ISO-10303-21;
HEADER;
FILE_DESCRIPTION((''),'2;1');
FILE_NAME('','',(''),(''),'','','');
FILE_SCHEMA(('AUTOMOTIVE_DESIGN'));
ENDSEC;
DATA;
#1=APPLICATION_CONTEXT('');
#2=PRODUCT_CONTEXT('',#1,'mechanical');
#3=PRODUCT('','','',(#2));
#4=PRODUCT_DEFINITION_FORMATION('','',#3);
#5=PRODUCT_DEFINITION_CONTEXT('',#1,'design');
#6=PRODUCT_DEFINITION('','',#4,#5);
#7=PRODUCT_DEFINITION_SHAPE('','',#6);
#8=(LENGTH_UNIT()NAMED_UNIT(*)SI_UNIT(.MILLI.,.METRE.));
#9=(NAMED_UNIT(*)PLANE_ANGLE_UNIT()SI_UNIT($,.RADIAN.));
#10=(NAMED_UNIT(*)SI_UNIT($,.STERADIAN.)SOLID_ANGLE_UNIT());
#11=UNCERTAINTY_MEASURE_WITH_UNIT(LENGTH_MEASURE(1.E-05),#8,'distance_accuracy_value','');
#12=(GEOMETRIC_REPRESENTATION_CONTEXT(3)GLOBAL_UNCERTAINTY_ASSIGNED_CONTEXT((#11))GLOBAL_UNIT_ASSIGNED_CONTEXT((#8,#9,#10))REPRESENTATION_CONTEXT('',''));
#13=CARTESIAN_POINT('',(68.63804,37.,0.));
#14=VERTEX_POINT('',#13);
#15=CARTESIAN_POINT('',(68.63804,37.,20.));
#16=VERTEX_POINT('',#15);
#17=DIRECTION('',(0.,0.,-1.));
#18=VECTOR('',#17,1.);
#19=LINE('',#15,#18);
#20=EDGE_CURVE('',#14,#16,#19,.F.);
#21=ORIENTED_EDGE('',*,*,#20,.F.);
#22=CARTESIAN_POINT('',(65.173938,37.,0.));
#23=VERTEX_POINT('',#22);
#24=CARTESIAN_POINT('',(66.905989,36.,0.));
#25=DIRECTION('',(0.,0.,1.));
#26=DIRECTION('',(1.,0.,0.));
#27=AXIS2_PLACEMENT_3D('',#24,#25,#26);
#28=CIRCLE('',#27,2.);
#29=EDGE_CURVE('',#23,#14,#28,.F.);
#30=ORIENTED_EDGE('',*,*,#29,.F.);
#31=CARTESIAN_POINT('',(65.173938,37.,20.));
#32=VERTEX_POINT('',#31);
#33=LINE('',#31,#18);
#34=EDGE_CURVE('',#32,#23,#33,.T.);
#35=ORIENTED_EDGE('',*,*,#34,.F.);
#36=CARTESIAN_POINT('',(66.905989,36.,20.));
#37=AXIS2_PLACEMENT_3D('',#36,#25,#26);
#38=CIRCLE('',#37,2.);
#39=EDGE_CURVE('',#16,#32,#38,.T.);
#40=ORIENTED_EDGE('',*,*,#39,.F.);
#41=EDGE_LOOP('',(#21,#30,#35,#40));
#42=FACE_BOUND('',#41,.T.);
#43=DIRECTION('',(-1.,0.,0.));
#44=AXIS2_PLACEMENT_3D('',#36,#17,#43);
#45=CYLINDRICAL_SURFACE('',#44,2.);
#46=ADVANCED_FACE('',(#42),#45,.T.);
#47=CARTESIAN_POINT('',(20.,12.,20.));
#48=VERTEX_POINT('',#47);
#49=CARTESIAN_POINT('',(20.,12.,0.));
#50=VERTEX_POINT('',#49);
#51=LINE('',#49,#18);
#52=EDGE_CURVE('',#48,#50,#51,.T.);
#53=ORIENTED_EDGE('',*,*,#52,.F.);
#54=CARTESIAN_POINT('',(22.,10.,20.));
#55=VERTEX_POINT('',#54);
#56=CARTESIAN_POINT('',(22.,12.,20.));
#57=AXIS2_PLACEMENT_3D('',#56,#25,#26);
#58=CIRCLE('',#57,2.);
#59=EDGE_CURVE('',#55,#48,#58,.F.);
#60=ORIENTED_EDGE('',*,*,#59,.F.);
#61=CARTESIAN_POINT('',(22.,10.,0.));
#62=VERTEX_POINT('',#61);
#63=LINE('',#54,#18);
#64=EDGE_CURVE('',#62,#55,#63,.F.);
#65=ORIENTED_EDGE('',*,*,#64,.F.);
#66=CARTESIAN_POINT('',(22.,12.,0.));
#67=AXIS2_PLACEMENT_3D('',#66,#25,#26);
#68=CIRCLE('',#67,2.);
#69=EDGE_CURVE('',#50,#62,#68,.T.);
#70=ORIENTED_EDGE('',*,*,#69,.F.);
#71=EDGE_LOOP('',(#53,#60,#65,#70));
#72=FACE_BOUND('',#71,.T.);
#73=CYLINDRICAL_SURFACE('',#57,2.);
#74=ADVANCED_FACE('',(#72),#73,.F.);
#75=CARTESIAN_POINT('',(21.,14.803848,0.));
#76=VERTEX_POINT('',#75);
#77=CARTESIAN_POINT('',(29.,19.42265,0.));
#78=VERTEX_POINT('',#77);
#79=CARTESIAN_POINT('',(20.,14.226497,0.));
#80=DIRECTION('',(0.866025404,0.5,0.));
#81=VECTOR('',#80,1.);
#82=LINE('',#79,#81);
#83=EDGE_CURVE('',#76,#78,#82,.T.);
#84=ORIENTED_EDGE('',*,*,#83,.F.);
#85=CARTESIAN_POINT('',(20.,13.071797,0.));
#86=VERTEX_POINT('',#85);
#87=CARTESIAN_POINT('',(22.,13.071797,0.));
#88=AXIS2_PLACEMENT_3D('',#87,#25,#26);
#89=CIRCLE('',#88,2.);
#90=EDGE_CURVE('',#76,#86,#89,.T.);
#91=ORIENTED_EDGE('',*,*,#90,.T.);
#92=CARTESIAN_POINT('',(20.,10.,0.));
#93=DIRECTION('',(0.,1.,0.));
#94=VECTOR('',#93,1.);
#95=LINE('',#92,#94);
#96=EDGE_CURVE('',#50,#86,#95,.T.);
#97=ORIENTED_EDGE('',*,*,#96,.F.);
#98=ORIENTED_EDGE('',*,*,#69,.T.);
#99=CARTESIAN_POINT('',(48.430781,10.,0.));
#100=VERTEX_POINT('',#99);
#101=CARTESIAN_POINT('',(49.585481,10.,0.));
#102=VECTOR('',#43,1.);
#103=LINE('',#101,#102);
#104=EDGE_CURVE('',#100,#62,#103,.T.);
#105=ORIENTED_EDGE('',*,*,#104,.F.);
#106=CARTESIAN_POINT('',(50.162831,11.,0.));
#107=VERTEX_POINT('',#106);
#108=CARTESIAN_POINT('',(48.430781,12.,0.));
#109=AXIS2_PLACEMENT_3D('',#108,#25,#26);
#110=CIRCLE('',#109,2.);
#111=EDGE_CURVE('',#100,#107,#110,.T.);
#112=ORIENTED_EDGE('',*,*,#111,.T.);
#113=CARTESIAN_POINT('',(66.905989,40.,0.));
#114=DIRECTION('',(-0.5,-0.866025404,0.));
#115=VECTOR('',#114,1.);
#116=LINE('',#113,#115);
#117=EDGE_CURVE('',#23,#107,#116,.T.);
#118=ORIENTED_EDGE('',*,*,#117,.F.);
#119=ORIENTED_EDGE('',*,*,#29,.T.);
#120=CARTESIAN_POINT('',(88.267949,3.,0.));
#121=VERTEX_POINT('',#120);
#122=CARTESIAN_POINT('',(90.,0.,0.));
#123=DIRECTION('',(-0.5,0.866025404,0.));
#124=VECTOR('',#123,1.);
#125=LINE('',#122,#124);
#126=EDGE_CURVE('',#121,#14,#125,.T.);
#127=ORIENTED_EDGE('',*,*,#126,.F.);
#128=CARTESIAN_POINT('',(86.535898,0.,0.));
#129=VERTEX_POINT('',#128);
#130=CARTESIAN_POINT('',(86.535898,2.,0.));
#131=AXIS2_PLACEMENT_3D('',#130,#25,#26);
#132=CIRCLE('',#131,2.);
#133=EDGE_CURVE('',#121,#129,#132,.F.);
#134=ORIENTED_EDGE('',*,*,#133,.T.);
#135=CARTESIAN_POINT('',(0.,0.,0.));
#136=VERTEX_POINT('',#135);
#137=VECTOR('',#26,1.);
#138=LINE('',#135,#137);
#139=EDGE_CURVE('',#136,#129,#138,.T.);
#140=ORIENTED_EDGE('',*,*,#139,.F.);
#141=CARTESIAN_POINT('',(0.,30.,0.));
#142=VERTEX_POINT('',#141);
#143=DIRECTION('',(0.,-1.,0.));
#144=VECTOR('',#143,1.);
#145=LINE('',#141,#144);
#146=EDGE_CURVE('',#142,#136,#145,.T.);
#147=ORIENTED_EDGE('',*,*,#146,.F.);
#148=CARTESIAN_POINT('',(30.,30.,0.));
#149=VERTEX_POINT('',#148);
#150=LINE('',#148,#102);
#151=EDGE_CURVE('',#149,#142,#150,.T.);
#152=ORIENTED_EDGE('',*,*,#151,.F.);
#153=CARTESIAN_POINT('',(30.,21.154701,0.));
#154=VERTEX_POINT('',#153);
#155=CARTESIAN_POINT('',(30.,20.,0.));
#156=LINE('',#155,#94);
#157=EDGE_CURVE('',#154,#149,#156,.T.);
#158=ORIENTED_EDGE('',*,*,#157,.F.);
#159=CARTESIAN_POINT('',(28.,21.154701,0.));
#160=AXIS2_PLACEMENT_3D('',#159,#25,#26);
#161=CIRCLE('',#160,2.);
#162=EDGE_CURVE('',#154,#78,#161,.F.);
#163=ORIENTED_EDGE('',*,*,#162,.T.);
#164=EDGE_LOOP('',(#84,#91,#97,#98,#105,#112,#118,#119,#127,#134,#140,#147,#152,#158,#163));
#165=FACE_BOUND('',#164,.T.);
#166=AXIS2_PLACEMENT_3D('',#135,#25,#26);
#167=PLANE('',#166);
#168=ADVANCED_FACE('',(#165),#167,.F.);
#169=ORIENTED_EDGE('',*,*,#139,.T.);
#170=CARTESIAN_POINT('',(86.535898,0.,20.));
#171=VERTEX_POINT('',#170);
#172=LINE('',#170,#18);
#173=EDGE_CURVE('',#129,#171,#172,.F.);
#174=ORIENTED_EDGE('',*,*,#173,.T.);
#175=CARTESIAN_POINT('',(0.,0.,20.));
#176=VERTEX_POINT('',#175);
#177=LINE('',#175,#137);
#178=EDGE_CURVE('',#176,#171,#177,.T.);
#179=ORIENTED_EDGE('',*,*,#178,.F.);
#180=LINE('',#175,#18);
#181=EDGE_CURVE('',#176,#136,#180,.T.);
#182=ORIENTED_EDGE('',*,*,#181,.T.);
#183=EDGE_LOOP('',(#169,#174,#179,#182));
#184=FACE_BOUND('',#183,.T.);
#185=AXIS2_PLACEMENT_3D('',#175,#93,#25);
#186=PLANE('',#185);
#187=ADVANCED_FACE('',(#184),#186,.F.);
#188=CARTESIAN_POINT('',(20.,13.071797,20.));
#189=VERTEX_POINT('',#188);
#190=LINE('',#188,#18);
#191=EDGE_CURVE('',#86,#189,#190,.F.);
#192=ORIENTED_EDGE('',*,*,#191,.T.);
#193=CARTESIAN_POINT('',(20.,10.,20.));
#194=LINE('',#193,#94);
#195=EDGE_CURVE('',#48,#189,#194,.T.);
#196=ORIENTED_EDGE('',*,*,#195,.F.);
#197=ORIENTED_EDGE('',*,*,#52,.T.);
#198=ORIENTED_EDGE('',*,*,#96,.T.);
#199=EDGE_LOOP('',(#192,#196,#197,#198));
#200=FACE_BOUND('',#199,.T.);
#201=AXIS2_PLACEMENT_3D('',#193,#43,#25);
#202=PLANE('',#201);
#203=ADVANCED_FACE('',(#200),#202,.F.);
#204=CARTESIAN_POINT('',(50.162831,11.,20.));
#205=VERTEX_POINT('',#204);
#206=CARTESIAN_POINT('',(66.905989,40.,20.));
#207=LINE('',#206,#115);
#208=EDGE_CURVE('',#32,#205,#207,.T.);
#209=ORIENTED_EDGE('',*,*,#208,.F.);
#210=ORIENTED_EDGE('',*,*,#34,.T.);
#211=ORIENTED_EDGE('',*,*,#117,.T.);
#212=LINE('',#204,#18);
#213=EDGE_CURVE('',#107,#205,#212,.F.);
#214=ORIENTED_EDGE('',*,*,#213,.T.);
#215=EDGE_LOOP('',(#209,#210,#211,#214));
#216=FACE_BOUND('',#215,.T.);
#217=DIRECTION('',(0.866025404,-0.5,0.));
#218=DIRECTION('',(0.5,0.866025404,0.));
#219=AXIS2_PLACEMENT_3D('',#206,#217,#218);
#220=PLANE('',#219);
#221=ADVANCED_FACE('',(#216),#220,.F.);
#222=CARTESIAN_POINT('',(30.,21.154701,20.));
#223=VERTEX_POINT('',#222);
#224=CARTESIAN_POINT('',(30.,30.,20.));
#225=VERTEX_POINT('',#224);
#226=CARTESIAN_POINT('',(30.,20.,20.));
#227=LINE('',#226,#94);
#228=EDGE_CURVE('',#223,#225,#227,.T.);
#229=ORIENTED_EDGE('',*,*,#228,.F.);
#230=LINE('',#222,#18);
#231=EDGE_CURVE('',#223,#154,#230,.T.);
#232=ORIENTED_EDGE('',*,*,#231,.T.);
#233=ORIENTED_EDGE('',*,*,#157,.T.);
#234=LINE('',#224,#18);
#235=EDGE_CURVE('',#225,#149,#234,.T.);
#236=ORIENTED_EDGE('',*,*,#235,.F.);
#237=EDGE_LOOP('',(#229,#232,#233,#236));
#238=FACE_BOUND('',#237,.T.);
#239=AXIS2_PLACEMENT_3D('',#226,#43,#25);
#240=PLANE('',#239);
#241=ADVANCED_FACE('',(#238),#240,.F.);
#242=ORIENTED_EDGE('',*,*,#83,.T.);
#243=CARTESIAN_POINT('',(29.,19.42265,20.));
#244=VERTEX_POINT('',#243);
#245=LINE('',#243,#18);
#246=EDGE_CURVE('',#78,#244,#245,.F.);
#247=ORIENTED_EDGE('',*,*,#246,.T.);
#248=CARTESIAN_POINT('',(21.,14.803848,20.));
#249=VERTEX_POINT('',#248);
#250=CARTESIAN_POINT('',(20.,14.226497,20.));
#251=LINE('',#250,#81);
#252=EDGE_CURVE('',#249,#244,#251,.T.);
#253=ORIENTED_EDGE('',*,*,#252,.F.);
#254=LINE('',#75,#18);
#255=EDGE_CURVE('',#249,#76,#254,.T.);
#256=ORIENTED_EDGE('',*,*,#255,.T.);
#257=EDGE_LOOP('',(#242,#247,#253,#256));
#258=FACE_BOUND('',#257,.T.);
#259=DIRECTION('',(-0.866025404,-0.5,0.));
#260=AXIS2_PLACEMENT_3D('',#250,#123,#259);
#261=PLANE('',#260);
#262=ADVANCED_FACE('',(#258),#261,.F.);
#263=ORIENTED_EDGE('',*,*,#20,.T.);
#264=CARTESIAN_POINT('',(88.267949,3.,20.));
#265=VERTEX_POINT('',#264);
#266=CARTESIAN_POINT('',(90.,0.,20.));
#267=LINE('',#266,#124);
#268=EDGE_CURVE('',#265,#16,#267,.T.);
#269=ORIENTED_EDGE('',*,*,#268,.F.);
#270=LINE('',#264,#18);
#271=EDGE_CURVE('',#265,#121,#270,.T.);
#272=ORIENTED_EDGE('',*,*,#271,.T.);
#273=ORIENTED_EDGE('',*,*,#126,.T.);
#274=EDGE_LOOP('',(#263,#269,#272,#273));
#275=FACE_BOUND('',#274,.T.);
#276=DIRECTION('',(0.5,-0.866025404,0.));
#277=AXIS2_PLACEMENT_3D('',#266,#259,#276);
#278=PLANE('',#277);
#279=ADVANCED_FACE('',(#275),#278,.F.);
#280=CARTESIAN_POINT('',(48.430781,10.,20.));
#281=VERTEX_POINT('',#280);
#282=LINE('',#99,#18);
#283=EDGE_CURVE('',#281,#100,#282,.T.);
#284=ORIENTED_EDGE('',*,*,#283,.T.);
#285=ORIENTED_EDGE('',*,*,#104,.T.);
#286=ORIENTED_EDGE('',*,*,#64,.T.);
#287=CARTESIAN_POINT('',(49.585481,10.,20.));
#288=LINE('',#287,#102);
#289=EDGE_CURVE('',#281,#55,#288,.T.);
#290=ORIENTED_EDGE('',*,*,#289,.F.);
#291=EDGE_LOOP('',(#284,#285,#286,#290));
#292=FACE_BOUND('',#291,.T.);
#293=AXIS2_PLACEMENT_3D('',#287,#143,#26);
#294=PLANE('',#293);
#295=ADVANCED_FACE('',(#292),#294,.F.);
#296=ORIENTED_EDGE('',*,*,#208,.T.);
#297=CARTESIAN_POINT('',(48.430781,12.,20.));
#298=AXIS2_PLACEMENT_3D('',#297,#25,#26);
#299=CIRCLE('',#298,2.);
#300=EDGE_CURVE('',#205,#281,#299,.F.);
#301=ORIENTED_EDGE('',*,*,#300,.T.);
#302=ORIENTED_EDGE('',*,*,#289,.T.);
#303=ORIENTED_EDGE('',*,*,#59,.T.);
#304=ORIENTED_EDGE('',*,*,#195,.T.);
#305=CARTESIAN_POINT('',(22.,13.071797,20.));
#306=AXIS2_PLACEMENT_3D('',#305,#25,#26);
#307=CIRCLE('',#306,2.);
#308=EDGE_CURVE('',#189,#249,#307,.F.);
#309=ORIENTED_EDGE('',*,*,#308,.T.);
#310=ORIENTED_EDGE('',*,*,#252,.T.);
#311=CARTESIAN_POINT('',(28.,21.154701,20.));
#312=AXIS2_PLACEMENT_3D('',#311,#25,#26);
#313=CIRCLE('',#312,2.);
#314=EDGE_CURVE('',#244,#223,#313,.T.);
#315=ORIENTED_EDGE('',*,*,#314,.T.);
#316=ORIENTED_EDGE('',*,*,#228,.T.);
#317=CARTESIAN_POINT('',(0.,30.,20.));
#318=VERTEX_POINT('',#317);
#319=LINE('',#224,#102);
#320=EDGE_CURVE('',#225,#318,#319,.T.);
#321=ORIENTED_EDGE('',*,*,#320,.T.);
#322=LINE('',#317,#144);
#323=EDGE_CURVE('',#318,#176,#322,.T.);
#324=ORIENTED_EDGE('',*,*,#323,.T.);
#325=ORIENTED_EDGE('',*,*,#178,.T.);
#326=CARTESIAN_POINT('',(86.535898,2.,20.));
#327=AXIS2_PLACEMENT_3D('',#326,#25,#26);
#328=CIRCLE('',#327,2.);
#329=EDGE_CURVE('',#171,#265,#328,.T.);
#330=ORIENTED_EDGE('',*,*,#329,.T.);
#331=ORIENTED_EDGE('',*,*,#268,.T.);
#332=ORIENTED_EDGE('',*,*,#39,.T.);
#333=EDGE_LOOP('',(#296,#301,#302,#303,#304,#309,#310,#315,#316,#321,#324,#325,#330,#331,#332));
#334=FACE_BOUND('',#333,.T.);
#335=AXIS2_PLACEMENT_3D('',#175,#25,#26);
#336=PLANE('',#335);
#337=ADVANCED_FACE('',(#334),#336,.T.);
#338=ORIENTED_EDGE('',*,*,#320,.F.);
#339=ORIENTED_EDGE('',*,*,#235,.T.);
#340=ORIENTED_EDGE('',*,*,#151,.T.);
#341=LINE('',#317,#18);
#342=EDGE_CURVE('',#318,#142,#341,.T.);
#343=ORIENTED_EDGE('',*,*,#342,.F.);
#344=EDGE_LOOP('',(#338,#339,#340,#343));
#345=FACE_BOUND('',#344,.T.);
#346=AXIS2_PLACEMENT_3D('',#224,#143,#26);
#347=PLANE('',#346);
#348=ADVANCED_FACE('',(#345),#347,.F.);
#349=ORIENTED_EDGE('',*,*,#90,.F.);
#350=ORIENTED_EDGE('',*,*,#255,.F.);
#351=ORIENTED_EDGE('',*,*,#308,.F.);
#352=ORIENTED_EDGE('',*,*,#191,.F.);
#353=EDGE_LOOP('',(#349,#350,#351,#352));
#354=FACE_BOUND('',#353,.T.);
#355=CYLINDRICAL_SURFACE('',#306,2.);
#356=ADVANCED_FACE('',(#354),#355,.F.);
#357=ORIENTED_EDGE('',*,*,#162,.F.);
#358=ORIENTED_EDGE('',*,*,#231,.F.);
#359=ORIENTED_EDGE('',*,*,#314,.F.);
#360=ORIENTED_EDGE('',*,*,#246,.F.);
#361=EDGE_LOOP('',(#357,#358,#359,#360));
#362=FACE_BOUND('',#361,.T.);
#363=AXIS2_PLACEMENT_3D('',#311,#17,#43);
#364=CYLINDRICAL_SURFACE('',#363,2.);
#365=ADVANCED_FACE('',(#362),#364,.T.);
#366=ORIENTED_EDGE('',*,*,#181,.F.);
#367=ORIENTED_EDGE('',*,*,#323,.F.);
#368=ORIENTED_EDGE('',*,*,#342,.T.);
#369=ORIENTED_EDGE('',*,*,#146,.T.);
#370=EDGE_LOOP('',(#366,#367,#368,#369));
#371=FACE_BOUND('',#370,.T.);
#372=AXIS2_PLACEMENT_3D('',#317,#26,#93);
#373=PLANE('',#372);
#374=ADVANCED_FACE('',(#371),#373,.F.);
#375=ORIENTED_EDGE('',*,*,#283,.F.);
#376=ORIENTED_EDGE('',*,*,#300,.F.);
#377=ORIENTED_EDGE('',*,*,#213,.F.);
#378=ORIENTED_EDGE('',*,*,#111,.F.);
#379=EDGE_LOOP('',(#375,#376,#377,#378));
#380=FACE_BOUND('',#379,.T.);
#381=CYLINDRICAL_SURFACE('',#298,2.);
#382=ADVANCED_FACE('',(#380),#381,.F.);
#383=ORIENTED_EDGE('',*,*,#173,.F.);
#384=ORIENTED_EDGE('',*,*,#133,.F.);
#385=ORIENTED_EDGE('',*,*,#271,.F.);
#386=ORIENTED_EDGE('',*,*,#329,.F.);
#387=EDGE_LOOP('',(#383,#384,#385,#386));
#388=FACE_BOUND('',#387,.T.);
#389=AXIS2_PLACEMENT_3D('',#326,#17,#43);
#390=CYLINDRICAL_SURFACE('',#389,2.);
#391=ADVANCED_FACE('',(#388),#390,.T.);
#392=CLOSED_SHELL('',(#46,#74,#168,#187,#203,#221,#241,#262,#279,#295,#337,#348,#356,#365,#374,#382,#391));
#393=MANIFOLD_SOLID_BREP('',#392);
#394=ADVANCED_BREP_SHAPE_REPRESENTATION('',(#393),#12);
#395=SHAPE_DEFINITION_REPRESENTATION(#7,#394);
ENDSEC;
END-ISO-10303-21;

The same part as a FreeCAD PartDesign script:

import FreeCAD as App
import Part
import Sketcher
from FreeCAD import Vector
Q = App.Units.Quantity


def edges_at(feature, points):
    """Names of the edges that pass closest to the given points."""
    edges = feature.Shape.Edges
    near = lambda p: min(range(len(edges)), key=lambda i: edges[i].distToShape(Part.Vertex(*p))[0])
    return sorted({f"Edge{near(p) + 1}" for p in points})


def add_polygon(sketch, points):
    """Adds a closed chain of lines whose ends are joined by coincident constraints."""
    first, n = sketch.GeometryCount, len(points)
    for a, b in zip(points, points[1:] + points[:1]):
        sketch.addGeometry(Part.LineSegment(App.Vector(*a, 0), App.Vector(*b, 0)), False)
    for i in range(n):
        sketch.addConstraint(Sketcher.Constraint("Coincident", first + i, 2, first + (i + 1) % n, 1))

doc = App.newDocument("Part")
body = doc.addObject("PartDesign::Body", "Body")

sketch1 = doc.addObject("Sketcher::SketchObject", "Sketch")
body.addObject(sketch1)
sketch1.AttachmentSupport = (doc.XY_Plane, [""])
sketch1.MapMode = "FlatFace"
add_polygon(sketch1, [(0, 0), (90, 0), (66.9, 40), (49.6, 10), (20, 10), (20, 14.2), (30, 20), (30, 30), (0, 30)])
sketch1.addConstraint([
    Sketcher.Constraint("Horizontal", 0),
    Sketcher.Constraint("Horizontal", 3),
    Sketcher.Constraint("Vertical", 4),
    Sketcher.Constraint("Vertical", 6),
    Sketcher.Constraint("Horizontal", 7),
    Sketcher.Constraint("Vertical", 8),
    Sketcher.Constraint("Coincident", 8, 2, -1, 1),
    Sketcher.Constraint("Perpendicular", 1, 5),
    Sketcher.Constraint("Equal", 7, 8),
    Sketcher.Constraint("DistanceX", 0, 1, 0, 2, Q("90 mm")),
    Sketcher.Constraint("DistanceX", 7, 2, 7, 1, Q("30 mm")),
    Sketcher.Constraint("DistanceY", 6, 1, 6, 2, Q("10 mm")),
    Sketcher.Constraint("Angle", 1, Q("120 deg")),
    Sketcher.Constraint("Angle", 2, Q("-120 deg")),
    Sketcher.Constraint("DistanceY", -1, 1, 1, 2, Q("40 mm")),
    Sketcher.Constraint("DistanceY", -1, 1, 2, 2, Q("10 mm")),
    Sketcher.Constraint("DistanceX", -1, 1, 3, 2, Q("20 mm")),
])
pad1 = doc.addObject("PartDesign::Pad", "Pad")
body.addObject(pad1)
pad1.Profile = sketch1
pad1.Length = 20
doc.recompute()

fillet = doc.addObject("PartDesign::Fillet", "Fillet")
body.addObject(fillet)
fillet.Base = (pad1, edges_at(pad1, [
    (30, 20, 10),
    (20, 14.226, 10),
    (20, 10, 10),
    (49.585, 10, 10),
    (66.906, 40, 10),
    (90, 0, 10),
]))
fillet.Radius = 2

doc.recompute()
